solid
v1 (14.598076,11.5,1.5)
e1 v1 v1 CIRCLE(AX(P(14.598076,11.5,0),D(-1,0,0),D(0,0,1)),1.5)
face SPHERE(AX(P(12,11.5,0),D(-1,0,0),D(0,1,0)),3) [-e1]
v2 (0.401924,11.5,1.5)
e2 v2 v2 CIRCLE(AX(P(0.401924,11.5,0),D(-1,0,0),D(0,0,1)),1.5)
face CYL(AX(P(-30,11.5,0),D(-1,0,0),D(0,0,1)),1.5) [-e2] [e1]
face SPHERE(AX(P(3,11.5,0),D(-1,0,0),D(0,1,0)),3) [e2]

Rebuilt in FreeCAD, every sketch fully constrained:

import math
import FreeCAD as App
import Part
import Sketcher
from FreeCAD import Vector
Q = App.Units.Quantity

doc = App.newDocument("Part")
body = doc.addObject("PartDesign::Body", "Body")

# Sketch on XY plane
sketch1 = doc.addObject("Sketcher::SketchObject", "Sketch")
body.addObject(sketch1)
sketch1.AttachmentSupport = (doc.XY_Plane, [""])
sketch1.MapMode = "FlatFace"
sketch1.addGeometry([
    Part.LineSegment(Vector(14.6, 13, 0), Vector(0.4, 13, 0)),
    Part.ArcOfCircle(Part.Circle(Vector(3, 11.5, 0), Vector(0, 0, 1), 3), math.radians(150), math.radians(180)),
    Part.LineSegment(Vector(0, 11.5, 0), Vector(15, 11.5, 0)),
    Part.ArcOfCircle(Part.Circle(Vector(12, 11.5, 0), Vector(0, 0, 1), 3), math.radians(0), math.radians(30)),
], False)
sketch1.addGeometry(Part.LineSegment(Vector(0, 11.5, 0), Vector(15, 11.5, 0)), True)  # axis
sketch1.addConstraint([
    Sketcher.Constraint("Coincident", 0, 2, 1, 1),
    Sketcher.Constraint("Coincident", 1, 2, 2, 1),
    Sketcher.Constraint("Coincident", 2, 2, 3, 1),
    Sketcher.Constraint("Coincident", 3, 2, 0, 1),
    Sketcher.Constraint("Horizontal", 0),
    Sketcher.Constraint("Horizontal", 2),
    Sketcher.Constraint("Horizontal", 4),
    Sketcher.Constraint("Coincident", 4, 1, 1, 2),
    Sketcher.Constraint("Equal", 1, 3),
    Sketcher.Constraint("PointOnObject", 1, 2, -2),
    Sketcher.Constraint("Horizontal", 1, 3, 3, 3),
    Sketcher.Constraint("Horizontal", 3, 3, 1, 2),
    Sketcher.Constraint("Equal", 2, 4),
    Sketcher.Constraint("Radius", 1, Q("3 mm")),
    Sketcher.Constraint("DistanceX", 2, 1, 2, 2, Q("15 mm")),
    Sketcher.Constraint("DistanceY", -1, 1, 0, 2, Q("13 mm")),
    Sketcher.Constraint("DistanceY", -1, 1, 1, 3, Q("11.5 mm")),
])
revolution = doc.addObject("PartDesign::Revolution", "Revolution")
body.addObject(revolution)
revolution.Profile = sketch1
revolution.ReferenceAxis = (sketch1, ["Axis0"])
revolution.Angle = 360

doc.recompute()
